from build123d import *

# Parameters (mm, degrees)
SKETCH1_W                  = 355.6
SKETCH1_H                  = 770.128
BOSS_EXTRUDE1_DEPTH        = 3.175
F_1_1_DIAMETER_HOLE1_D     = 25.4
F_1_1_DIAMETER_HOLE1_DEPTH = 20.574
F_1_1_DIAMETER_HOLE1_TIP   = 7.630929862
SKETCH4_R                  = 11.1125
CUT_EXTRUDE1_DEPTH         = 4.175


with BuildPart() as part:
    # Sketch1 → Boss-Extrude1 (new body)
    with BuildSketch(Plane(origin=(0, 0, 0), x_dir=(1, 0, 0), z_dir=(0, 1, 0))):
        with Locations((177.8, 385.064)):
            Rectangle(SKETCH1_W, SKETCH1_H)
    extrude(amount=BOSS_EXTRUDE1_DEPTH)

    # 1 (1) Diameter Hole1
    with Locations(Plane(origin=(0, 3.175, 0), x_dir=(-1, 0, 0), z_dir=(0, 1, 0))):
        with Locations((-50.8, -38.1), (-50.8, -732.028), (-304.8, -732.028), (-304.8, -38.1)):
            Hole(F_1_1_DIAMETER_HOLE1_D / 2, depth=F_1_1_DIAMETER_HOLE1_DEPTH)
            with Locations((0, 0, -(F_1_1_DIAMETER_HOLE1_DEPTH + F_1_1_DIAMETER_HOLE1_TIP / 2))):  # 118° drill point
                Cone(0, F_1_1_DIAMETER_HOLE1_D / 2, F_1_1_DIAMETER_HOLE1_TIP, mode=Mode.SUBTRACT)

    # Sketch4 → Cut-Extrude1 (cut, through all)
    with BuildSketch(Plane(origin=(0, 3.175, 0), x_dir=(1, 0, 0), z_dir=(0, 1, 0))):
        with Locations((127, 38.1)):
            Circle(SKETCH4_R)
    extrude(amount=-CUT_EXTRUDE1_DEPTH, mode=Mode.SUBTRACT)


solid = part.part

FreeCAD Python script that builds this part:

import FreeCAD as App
import Part
import Sketcher

V = App.Vector
Q = App.Units.Quantity

doc = App.newDocument("Part")
body = doc.addObject("PartDesign::Body", "Body")

sketch1 = body.newObject("Sketcher::SketchObject", "Sketch")
sketch1.AttachmentSupport = (doc.getObject("XZ_Plane"), [""])
sketch1.MapMode = "FlatFace"
sketch1.addGeometry([
    Part.LineSegment(V(0, -770, 0), V(0, 0, 0)),
    Part.LineSegment(V(0, 0, 0), V(356, 0, 0)),
    Part.LineSegment(V(356, 0, 0), V(356, -770, 0)),
    Part.LineSegment(V(356, -770, 0), V(0, -770, 0)),
], False)
sketch1.addConstraint([
    Sketcher.Constraint("Coincident", 0, 2, 1, 1),
    Sketcher.Constraint("Coincident", 1, 2, 2, 1),
    Sketcher.Constraint("Coincident", 2, 2, 3, 1),
    Sketcher.Constraint("Coincident", 3, 2, 0, 1),
    Sketcher.Constraint("Vertical", 0),
    Sketcher.Constraint("Horizontal", 1),
    Sketcher.Constraint("Vertical", 2),
    Sketcher.Constraint("Horizontal", 3),
    Sketcher.Constraint("Coincident", 0, 2, -1, 1),
    Sketcher.Constraint("DistanceX", 1, 1, 1, 2, Q("14 in")),
    Sketcher.Constraint("DistanceY", 0, 1, 0, 2, Q("30.32 in")),
])
pad1 = body.newObject("PartDesign::Pad", "Pad")
pad1.Profile = sketch1
pad1.Length = Q("0.125 in")
pad1.Reversed = True

sketch2 = body.newObject("Sketcher::SketchObject", "Sketch001")
sketch2.AttachmentSupport = (doc.getObject("XZ_Plane"), [""])
sketch2.MapMode = "FlatFace"
sketch2.AttachmentOffset = App.Placement(V(0, 0, -0.125 * 25.4), App.Rotation())
sketch2.addGeometry([
    Part.Circle(V(51, -38, 0), V(0, 0, 1), 13),
    Part.Circle(V(51, -732, 0), V(0, 0, 1), 13),
    Part.Circle(V(305, -732, 0), V(0, 0, 1), 13),
    Part.Circle(V(305, -38, 0), V(0, 0, 1), 13),
], False)
sketch2.addConstraint([
    Sketcher.Constraint("Equal", 0, 1),
    Sketcher.Constraint("Equal", 1, 2),
    Sketcher.Constraint("Equal", 2, 3),
    Sketcher.Constraint("Horizontal", 1, 3, 2, 3),
    Sketcher.Constraint("Horizontal", 0, 3, 3, 3),
    Sketcher.Constraint("Vertical", 0, 3, 1, 3),
    Sketcher.Constraint("Vertical", 2, 3, 3, 3),
    Sketcher.Constraint("Diameter", 0, Q("1 in")),
    Sketcher.Constraint("DistanceX", -1, 1, 0, 3, Q("2 in")),
    Sketcher.Constraint("DistanceX", -1, 1, 2, 3, Q("12 in")),
    Sketcher.Constraint("DistanceY", 0, 3, -1, 1, Q("1.5 in")),
    Sketcher.Constraint("DistanceY", 1, 3, -1, 1, Q("28.82 in")),
])
doc.recompute()
hole = body.newObject("PartDesign::Hole", "Hole")
hole.Profile = sketch2
hole.ThreadType = "None"
hole.Diameter = Q("1 in")
hole.DepthType = "Dimension"
hole.Depth = Q("0.81 in")
hole.DrillPoint = "Angled"
hole.DrillPointAngle = 118
hole.Reversed = True

sketch3 = body.newObject("Sketcher::SketchObject", "Sketch002")
sketch3.AttachmentSupport = (doc.getObject("XZ_Plane"), [""])
sketch3.MapMode = "FlatFace"
sketch3.AttachmentOffset = App.Placement(V(0, 0, -0.125 * 25.4), App.Rotation())
sketch3.addGeometry(Part.Circle(V(127, -38, 0), V(0, 0, 1), 11), False)
sketch3.addConstraint([
    Sketcher.Constraint("Diameter", 0, Q("0.875 in")),
    Sketcher.Constraint("DistanceX", -1, 1, 0, 3, Q("5 in")),
    Sketcher.Constraint("DistanceY", 0, 3, -1, 1, Q("1.5 in")),
])
pocket1 = body.newObject("PartDesign::Pocket", "Pocket")
pocket1.Profile = sketch3
pocket1.Type = "ThroughAll"
pocket1.Reversed = True

doc.recompute()
